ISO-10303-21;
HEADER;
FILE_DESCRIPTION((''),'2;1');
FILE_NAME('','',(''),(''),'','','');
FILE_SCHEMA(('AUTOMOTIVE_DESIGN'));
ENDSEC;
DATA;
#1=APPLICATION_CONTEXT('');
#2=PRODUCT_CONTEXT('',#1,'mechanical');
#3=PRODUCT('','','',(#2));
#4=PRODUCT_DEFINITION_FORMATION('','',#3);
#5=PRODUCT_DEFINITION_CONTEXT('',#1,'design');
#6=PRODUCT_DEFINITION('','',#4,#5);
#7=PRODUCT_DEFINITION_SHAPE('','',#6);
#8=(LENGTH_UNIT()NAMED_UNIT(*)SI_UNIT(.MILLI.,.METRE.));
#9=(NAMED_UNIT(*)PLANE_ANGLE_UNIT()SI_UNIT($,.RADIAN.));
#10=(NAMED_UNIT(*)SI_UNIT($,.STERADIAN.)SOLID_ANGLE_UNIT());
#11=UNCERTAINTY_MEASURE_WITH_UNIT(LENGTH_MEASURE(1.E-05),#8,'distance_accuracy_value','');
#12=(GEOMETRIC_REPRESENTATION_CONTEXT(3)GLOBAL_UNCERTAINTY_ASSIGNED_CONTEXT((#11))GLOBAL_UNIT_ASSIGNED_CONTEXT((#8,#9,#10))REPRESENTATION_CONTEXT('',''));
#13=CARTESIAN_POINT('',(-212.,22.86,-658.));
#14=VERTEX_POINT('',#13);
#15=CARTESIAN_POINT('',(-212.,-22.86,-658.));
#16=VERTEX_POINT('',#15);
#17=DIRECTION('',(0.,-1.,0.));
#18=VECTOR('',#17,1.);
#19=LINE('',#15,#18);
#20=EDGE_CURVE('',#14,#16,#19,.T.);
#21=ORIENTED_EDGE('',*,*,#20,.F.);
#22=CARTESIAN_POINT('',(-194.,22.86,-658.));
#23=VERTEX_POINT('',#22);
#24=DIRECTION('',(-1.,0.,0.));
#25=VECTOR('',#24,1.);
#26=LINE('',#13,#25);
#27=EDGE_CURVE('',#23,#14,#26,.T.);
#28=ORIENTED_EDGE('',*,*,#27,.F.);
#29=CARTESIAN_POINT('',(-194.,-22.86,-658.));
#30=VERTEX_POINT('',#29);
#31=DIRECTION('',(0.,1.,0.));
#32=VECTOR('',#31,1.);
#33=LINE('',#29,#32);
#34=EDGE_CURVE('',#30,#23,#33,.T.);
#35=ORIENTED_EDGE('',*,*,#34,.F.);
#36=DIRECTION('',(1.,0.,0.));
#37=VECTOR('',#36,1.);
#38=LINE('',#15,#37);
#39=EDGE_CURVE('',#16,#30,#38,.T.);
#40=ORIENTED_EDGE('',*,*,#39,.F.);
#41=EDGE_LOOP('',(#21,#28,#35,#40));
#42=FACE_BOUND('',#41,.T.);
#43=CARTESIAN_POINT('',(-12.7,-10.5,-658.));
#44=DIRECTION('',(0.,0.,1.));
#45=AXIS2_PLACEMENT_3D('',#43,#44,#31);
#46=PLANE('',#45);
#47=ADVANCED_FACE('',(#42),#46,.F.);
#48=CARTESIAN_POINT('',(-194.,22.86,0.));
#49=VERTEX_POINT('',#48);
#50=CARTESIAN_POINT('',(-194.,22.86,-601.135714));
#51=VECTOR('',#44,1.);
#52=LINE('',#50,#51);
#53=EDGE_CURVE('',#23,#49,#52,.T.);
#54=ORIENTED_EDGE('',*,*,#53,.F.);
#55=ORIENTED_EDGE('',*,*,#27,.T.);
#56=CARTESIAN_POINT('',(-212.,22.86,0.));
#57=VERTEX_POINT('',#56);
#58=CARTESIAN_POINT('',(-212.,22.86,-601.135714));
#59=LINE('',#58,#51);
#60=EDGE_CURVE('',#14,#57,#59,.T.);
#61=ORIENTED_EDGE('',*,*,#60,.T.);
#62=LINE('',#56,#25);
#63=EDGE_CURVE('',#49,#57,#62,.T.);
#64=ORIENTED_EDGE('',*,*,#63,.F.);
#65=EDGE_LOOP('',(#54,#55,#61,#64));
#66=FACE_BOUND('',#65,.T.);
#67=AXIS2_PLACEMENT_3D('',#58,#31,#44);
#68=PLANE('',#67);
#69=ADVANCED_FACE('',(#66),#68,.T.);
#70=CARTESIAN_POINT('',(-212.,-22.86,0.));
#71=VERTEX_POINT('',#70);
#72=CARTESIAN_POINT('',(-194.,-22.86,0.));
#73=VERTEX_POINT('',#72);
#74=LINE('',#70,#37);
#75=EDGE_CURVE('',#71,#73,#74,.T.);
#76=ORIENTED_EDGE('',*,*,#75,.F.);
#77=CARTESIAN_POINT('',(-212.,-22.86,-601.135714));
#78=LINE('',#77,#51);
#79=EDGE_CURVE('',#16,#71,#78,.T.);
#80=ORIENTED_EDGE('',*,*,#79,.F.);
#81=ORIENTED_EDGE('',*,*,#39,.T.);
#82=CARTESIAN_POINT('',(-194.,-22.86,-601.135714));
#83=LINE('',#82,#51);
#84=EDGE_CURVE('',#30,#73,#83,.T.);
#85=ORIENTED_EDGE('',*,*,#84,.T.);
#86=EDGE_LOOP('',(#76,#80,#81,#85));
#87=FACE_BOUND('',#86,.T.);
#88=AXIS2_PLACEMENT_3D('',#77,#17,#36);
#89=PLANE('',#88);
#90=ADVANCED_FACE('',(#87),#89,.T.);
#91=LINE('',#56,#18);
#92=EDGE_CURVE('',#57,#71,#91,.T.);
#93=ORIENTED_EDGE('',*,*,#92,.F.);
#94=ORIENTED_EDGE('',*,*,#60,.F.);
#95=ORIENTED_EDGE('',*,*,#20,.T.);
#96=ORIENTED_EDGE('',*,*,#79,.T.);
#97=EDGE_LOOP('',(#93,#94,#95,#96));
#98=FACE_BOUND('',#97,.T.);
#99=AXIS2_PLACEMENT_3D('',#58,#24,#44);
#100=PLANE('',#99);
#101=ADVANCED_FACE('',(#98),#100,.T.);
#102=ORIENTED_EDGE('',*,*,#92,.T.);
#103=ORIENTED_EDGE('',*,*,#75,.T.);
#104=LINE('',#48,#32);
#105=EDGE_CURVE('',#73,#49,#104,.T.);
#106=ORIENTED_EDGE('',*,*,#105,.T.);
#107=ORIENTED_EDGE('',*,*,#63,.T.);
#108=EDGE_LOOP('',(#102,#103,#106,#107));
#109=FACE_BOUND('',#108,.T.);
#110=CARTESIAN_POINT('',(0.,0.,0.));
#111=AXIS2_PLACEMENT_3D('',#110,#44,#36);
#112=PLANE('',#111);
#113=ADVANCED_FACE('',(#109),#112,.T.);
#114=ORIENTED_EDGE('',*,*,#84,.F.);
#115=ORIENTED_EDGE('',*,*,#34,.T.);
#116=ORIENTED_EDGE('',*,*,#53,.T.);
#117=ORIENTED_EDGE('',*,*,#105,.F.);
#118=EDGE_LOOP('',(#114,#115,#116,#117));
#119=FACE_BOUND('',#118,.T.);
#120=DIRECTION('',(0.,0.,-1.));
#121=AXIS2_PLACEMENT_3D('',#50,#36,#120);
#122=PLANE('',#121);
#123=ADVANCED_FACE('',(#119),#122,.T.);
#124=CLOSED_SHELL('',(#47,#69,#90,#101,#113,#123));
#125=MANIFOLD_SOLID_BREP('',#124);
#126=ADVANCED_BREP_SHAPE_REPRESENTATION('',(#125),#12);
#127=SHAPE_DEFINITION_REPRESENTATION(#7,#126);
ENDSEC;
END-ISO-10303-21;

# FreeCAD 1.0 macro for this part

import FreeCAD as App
import Part
import Sketcher
from FreeCAD import Vector
Q = App.Units.Quantity

doc = App.newDocument("Part")
body = doc.addObject("PartDesign::Body", "Body")

sketch1 = doc.addObject("Sketcher::SketchObject", "Sketch")
body.addObject(sketch1)
sketch1.AttachmentSupport = (doc.XY_Plane, [""])
sketch1.MapMode = "FlatFace"
sketch1.addGeometry([
    Part.LineSegment(Vector(-212, 23, 0), Vector(-212, -23, 0)),
    Part.LineSegment(Vector(-212, -23, 0), Vector(-194, -23, 0)),
    Part.LineSegment(Vector(-194, -23, 0), Vector(-194, 23, 0)),
    Part.LineSegment(Vector(-194, 23, 0), Vector(-212, 23, 0)),
], False)
sketch1.addConstraint([
    Sketcher.Constraint("Coincident", 0, 2, 1, 1),
    Sketcher.Constraint("Coincident", 1, 2, 2, 1),
    Sketcher.Constraint("Coincident", 2, 2, 3, 1),
    Sketcher.Constraint("Coincident", 3, 2, 0, 1),
    Sketcher.Constraint("Vertical", 0),
    Sketcher.Constraint("Horizontal", 1),
    Sketcher.Constraint("Vertical", 2),
    Sketcher.Constraint("Horizontal", 3),
    Sketcher.Constraint("DistanceX", 1, 1, 1, 2, Q("18 mm")),
    Sketcher.Constraint("DistanceX", 0, 2, -1, 1, Q("212 mm")),
    Sketcher.Constraint("DistanceY", 0, 2, 0, 1, Q("45.72 mm")),
    Sketcher.Constraint("DistanceY", 0, 2, -1, 1, Q("22.86 mm")),
])
pad1 = doc.addObject("PartDesign::Pad", "Pad")
body.addObject(pad1)
pad1.Profile = sketch1
pad1.Length = 552
pad1.Reversed = True

sketch2 = doc.addObject("Sketcher::SketchObject", "Sketch001")
body.addObject(sketch2)
sketch2.AttachmentSupport = (doc.XY_Plane, [""])
sketch2.MapMode = "FlatFace"
sketch2.AttachmentOffset = App.Placement(Vector(0, 0, -552), App.Rotation())
sketch2.addGeometry([
    Part.LineSegment(Vector(-194, 23, 0), Vector(-194, -23, 0)),
    Part.LineSegment(Vector(-194, -23, 0), Vector(-212, -23, 0)),
    Part.LineSegment(Vector(-212, -23, 0), Vector(-212, 23, 0)),
    Part.LineSegment(Vector(-212, 23, 0), Vector(-194, 23, 0)),
], False)
sketch2.addConstraint([
    Sketcher.Constraint("Coincident", 0, 2, 1, 1),
    Sketcher.Constraint("Coincident", 1, 2, 2, 1),
    Sketcher.Constraint("Coincident", 2, 2, 3, 1),
    Sketcher.Constraint("Coincident", 3, 2, 0, 1),
    Sketcher.Constraint("Vertical", 0),
    Sketcher.Constraint("Horizontal", 1),
    Sketcher.Constraint("Vertical", 2),
    Sketcher.Constraint("Horizontal", 3),
    Sketcher.Constraint("DistanceX", 1, 2, 1, 1, Q("18 mm")),
    Sketcher.Constraint("DistanceX", 0, 2, -1, 1, Q("194 mm")),
    Sketcher.Constraint("DistanceY", 0, 2, 0, 1, Q("45.72 mm")),
    Sketcher.Constraint("DistanceY", 0, 2, -1, 1, Q("22.86 mm")),
])
pad2 = doc.addObject("PartDesign::Pad", "Pad001")
body.addObject(pad2)
pad2.Profile = sketch2
pad2.Length = 106
pad2.Reversed = True

doc.recompute()
